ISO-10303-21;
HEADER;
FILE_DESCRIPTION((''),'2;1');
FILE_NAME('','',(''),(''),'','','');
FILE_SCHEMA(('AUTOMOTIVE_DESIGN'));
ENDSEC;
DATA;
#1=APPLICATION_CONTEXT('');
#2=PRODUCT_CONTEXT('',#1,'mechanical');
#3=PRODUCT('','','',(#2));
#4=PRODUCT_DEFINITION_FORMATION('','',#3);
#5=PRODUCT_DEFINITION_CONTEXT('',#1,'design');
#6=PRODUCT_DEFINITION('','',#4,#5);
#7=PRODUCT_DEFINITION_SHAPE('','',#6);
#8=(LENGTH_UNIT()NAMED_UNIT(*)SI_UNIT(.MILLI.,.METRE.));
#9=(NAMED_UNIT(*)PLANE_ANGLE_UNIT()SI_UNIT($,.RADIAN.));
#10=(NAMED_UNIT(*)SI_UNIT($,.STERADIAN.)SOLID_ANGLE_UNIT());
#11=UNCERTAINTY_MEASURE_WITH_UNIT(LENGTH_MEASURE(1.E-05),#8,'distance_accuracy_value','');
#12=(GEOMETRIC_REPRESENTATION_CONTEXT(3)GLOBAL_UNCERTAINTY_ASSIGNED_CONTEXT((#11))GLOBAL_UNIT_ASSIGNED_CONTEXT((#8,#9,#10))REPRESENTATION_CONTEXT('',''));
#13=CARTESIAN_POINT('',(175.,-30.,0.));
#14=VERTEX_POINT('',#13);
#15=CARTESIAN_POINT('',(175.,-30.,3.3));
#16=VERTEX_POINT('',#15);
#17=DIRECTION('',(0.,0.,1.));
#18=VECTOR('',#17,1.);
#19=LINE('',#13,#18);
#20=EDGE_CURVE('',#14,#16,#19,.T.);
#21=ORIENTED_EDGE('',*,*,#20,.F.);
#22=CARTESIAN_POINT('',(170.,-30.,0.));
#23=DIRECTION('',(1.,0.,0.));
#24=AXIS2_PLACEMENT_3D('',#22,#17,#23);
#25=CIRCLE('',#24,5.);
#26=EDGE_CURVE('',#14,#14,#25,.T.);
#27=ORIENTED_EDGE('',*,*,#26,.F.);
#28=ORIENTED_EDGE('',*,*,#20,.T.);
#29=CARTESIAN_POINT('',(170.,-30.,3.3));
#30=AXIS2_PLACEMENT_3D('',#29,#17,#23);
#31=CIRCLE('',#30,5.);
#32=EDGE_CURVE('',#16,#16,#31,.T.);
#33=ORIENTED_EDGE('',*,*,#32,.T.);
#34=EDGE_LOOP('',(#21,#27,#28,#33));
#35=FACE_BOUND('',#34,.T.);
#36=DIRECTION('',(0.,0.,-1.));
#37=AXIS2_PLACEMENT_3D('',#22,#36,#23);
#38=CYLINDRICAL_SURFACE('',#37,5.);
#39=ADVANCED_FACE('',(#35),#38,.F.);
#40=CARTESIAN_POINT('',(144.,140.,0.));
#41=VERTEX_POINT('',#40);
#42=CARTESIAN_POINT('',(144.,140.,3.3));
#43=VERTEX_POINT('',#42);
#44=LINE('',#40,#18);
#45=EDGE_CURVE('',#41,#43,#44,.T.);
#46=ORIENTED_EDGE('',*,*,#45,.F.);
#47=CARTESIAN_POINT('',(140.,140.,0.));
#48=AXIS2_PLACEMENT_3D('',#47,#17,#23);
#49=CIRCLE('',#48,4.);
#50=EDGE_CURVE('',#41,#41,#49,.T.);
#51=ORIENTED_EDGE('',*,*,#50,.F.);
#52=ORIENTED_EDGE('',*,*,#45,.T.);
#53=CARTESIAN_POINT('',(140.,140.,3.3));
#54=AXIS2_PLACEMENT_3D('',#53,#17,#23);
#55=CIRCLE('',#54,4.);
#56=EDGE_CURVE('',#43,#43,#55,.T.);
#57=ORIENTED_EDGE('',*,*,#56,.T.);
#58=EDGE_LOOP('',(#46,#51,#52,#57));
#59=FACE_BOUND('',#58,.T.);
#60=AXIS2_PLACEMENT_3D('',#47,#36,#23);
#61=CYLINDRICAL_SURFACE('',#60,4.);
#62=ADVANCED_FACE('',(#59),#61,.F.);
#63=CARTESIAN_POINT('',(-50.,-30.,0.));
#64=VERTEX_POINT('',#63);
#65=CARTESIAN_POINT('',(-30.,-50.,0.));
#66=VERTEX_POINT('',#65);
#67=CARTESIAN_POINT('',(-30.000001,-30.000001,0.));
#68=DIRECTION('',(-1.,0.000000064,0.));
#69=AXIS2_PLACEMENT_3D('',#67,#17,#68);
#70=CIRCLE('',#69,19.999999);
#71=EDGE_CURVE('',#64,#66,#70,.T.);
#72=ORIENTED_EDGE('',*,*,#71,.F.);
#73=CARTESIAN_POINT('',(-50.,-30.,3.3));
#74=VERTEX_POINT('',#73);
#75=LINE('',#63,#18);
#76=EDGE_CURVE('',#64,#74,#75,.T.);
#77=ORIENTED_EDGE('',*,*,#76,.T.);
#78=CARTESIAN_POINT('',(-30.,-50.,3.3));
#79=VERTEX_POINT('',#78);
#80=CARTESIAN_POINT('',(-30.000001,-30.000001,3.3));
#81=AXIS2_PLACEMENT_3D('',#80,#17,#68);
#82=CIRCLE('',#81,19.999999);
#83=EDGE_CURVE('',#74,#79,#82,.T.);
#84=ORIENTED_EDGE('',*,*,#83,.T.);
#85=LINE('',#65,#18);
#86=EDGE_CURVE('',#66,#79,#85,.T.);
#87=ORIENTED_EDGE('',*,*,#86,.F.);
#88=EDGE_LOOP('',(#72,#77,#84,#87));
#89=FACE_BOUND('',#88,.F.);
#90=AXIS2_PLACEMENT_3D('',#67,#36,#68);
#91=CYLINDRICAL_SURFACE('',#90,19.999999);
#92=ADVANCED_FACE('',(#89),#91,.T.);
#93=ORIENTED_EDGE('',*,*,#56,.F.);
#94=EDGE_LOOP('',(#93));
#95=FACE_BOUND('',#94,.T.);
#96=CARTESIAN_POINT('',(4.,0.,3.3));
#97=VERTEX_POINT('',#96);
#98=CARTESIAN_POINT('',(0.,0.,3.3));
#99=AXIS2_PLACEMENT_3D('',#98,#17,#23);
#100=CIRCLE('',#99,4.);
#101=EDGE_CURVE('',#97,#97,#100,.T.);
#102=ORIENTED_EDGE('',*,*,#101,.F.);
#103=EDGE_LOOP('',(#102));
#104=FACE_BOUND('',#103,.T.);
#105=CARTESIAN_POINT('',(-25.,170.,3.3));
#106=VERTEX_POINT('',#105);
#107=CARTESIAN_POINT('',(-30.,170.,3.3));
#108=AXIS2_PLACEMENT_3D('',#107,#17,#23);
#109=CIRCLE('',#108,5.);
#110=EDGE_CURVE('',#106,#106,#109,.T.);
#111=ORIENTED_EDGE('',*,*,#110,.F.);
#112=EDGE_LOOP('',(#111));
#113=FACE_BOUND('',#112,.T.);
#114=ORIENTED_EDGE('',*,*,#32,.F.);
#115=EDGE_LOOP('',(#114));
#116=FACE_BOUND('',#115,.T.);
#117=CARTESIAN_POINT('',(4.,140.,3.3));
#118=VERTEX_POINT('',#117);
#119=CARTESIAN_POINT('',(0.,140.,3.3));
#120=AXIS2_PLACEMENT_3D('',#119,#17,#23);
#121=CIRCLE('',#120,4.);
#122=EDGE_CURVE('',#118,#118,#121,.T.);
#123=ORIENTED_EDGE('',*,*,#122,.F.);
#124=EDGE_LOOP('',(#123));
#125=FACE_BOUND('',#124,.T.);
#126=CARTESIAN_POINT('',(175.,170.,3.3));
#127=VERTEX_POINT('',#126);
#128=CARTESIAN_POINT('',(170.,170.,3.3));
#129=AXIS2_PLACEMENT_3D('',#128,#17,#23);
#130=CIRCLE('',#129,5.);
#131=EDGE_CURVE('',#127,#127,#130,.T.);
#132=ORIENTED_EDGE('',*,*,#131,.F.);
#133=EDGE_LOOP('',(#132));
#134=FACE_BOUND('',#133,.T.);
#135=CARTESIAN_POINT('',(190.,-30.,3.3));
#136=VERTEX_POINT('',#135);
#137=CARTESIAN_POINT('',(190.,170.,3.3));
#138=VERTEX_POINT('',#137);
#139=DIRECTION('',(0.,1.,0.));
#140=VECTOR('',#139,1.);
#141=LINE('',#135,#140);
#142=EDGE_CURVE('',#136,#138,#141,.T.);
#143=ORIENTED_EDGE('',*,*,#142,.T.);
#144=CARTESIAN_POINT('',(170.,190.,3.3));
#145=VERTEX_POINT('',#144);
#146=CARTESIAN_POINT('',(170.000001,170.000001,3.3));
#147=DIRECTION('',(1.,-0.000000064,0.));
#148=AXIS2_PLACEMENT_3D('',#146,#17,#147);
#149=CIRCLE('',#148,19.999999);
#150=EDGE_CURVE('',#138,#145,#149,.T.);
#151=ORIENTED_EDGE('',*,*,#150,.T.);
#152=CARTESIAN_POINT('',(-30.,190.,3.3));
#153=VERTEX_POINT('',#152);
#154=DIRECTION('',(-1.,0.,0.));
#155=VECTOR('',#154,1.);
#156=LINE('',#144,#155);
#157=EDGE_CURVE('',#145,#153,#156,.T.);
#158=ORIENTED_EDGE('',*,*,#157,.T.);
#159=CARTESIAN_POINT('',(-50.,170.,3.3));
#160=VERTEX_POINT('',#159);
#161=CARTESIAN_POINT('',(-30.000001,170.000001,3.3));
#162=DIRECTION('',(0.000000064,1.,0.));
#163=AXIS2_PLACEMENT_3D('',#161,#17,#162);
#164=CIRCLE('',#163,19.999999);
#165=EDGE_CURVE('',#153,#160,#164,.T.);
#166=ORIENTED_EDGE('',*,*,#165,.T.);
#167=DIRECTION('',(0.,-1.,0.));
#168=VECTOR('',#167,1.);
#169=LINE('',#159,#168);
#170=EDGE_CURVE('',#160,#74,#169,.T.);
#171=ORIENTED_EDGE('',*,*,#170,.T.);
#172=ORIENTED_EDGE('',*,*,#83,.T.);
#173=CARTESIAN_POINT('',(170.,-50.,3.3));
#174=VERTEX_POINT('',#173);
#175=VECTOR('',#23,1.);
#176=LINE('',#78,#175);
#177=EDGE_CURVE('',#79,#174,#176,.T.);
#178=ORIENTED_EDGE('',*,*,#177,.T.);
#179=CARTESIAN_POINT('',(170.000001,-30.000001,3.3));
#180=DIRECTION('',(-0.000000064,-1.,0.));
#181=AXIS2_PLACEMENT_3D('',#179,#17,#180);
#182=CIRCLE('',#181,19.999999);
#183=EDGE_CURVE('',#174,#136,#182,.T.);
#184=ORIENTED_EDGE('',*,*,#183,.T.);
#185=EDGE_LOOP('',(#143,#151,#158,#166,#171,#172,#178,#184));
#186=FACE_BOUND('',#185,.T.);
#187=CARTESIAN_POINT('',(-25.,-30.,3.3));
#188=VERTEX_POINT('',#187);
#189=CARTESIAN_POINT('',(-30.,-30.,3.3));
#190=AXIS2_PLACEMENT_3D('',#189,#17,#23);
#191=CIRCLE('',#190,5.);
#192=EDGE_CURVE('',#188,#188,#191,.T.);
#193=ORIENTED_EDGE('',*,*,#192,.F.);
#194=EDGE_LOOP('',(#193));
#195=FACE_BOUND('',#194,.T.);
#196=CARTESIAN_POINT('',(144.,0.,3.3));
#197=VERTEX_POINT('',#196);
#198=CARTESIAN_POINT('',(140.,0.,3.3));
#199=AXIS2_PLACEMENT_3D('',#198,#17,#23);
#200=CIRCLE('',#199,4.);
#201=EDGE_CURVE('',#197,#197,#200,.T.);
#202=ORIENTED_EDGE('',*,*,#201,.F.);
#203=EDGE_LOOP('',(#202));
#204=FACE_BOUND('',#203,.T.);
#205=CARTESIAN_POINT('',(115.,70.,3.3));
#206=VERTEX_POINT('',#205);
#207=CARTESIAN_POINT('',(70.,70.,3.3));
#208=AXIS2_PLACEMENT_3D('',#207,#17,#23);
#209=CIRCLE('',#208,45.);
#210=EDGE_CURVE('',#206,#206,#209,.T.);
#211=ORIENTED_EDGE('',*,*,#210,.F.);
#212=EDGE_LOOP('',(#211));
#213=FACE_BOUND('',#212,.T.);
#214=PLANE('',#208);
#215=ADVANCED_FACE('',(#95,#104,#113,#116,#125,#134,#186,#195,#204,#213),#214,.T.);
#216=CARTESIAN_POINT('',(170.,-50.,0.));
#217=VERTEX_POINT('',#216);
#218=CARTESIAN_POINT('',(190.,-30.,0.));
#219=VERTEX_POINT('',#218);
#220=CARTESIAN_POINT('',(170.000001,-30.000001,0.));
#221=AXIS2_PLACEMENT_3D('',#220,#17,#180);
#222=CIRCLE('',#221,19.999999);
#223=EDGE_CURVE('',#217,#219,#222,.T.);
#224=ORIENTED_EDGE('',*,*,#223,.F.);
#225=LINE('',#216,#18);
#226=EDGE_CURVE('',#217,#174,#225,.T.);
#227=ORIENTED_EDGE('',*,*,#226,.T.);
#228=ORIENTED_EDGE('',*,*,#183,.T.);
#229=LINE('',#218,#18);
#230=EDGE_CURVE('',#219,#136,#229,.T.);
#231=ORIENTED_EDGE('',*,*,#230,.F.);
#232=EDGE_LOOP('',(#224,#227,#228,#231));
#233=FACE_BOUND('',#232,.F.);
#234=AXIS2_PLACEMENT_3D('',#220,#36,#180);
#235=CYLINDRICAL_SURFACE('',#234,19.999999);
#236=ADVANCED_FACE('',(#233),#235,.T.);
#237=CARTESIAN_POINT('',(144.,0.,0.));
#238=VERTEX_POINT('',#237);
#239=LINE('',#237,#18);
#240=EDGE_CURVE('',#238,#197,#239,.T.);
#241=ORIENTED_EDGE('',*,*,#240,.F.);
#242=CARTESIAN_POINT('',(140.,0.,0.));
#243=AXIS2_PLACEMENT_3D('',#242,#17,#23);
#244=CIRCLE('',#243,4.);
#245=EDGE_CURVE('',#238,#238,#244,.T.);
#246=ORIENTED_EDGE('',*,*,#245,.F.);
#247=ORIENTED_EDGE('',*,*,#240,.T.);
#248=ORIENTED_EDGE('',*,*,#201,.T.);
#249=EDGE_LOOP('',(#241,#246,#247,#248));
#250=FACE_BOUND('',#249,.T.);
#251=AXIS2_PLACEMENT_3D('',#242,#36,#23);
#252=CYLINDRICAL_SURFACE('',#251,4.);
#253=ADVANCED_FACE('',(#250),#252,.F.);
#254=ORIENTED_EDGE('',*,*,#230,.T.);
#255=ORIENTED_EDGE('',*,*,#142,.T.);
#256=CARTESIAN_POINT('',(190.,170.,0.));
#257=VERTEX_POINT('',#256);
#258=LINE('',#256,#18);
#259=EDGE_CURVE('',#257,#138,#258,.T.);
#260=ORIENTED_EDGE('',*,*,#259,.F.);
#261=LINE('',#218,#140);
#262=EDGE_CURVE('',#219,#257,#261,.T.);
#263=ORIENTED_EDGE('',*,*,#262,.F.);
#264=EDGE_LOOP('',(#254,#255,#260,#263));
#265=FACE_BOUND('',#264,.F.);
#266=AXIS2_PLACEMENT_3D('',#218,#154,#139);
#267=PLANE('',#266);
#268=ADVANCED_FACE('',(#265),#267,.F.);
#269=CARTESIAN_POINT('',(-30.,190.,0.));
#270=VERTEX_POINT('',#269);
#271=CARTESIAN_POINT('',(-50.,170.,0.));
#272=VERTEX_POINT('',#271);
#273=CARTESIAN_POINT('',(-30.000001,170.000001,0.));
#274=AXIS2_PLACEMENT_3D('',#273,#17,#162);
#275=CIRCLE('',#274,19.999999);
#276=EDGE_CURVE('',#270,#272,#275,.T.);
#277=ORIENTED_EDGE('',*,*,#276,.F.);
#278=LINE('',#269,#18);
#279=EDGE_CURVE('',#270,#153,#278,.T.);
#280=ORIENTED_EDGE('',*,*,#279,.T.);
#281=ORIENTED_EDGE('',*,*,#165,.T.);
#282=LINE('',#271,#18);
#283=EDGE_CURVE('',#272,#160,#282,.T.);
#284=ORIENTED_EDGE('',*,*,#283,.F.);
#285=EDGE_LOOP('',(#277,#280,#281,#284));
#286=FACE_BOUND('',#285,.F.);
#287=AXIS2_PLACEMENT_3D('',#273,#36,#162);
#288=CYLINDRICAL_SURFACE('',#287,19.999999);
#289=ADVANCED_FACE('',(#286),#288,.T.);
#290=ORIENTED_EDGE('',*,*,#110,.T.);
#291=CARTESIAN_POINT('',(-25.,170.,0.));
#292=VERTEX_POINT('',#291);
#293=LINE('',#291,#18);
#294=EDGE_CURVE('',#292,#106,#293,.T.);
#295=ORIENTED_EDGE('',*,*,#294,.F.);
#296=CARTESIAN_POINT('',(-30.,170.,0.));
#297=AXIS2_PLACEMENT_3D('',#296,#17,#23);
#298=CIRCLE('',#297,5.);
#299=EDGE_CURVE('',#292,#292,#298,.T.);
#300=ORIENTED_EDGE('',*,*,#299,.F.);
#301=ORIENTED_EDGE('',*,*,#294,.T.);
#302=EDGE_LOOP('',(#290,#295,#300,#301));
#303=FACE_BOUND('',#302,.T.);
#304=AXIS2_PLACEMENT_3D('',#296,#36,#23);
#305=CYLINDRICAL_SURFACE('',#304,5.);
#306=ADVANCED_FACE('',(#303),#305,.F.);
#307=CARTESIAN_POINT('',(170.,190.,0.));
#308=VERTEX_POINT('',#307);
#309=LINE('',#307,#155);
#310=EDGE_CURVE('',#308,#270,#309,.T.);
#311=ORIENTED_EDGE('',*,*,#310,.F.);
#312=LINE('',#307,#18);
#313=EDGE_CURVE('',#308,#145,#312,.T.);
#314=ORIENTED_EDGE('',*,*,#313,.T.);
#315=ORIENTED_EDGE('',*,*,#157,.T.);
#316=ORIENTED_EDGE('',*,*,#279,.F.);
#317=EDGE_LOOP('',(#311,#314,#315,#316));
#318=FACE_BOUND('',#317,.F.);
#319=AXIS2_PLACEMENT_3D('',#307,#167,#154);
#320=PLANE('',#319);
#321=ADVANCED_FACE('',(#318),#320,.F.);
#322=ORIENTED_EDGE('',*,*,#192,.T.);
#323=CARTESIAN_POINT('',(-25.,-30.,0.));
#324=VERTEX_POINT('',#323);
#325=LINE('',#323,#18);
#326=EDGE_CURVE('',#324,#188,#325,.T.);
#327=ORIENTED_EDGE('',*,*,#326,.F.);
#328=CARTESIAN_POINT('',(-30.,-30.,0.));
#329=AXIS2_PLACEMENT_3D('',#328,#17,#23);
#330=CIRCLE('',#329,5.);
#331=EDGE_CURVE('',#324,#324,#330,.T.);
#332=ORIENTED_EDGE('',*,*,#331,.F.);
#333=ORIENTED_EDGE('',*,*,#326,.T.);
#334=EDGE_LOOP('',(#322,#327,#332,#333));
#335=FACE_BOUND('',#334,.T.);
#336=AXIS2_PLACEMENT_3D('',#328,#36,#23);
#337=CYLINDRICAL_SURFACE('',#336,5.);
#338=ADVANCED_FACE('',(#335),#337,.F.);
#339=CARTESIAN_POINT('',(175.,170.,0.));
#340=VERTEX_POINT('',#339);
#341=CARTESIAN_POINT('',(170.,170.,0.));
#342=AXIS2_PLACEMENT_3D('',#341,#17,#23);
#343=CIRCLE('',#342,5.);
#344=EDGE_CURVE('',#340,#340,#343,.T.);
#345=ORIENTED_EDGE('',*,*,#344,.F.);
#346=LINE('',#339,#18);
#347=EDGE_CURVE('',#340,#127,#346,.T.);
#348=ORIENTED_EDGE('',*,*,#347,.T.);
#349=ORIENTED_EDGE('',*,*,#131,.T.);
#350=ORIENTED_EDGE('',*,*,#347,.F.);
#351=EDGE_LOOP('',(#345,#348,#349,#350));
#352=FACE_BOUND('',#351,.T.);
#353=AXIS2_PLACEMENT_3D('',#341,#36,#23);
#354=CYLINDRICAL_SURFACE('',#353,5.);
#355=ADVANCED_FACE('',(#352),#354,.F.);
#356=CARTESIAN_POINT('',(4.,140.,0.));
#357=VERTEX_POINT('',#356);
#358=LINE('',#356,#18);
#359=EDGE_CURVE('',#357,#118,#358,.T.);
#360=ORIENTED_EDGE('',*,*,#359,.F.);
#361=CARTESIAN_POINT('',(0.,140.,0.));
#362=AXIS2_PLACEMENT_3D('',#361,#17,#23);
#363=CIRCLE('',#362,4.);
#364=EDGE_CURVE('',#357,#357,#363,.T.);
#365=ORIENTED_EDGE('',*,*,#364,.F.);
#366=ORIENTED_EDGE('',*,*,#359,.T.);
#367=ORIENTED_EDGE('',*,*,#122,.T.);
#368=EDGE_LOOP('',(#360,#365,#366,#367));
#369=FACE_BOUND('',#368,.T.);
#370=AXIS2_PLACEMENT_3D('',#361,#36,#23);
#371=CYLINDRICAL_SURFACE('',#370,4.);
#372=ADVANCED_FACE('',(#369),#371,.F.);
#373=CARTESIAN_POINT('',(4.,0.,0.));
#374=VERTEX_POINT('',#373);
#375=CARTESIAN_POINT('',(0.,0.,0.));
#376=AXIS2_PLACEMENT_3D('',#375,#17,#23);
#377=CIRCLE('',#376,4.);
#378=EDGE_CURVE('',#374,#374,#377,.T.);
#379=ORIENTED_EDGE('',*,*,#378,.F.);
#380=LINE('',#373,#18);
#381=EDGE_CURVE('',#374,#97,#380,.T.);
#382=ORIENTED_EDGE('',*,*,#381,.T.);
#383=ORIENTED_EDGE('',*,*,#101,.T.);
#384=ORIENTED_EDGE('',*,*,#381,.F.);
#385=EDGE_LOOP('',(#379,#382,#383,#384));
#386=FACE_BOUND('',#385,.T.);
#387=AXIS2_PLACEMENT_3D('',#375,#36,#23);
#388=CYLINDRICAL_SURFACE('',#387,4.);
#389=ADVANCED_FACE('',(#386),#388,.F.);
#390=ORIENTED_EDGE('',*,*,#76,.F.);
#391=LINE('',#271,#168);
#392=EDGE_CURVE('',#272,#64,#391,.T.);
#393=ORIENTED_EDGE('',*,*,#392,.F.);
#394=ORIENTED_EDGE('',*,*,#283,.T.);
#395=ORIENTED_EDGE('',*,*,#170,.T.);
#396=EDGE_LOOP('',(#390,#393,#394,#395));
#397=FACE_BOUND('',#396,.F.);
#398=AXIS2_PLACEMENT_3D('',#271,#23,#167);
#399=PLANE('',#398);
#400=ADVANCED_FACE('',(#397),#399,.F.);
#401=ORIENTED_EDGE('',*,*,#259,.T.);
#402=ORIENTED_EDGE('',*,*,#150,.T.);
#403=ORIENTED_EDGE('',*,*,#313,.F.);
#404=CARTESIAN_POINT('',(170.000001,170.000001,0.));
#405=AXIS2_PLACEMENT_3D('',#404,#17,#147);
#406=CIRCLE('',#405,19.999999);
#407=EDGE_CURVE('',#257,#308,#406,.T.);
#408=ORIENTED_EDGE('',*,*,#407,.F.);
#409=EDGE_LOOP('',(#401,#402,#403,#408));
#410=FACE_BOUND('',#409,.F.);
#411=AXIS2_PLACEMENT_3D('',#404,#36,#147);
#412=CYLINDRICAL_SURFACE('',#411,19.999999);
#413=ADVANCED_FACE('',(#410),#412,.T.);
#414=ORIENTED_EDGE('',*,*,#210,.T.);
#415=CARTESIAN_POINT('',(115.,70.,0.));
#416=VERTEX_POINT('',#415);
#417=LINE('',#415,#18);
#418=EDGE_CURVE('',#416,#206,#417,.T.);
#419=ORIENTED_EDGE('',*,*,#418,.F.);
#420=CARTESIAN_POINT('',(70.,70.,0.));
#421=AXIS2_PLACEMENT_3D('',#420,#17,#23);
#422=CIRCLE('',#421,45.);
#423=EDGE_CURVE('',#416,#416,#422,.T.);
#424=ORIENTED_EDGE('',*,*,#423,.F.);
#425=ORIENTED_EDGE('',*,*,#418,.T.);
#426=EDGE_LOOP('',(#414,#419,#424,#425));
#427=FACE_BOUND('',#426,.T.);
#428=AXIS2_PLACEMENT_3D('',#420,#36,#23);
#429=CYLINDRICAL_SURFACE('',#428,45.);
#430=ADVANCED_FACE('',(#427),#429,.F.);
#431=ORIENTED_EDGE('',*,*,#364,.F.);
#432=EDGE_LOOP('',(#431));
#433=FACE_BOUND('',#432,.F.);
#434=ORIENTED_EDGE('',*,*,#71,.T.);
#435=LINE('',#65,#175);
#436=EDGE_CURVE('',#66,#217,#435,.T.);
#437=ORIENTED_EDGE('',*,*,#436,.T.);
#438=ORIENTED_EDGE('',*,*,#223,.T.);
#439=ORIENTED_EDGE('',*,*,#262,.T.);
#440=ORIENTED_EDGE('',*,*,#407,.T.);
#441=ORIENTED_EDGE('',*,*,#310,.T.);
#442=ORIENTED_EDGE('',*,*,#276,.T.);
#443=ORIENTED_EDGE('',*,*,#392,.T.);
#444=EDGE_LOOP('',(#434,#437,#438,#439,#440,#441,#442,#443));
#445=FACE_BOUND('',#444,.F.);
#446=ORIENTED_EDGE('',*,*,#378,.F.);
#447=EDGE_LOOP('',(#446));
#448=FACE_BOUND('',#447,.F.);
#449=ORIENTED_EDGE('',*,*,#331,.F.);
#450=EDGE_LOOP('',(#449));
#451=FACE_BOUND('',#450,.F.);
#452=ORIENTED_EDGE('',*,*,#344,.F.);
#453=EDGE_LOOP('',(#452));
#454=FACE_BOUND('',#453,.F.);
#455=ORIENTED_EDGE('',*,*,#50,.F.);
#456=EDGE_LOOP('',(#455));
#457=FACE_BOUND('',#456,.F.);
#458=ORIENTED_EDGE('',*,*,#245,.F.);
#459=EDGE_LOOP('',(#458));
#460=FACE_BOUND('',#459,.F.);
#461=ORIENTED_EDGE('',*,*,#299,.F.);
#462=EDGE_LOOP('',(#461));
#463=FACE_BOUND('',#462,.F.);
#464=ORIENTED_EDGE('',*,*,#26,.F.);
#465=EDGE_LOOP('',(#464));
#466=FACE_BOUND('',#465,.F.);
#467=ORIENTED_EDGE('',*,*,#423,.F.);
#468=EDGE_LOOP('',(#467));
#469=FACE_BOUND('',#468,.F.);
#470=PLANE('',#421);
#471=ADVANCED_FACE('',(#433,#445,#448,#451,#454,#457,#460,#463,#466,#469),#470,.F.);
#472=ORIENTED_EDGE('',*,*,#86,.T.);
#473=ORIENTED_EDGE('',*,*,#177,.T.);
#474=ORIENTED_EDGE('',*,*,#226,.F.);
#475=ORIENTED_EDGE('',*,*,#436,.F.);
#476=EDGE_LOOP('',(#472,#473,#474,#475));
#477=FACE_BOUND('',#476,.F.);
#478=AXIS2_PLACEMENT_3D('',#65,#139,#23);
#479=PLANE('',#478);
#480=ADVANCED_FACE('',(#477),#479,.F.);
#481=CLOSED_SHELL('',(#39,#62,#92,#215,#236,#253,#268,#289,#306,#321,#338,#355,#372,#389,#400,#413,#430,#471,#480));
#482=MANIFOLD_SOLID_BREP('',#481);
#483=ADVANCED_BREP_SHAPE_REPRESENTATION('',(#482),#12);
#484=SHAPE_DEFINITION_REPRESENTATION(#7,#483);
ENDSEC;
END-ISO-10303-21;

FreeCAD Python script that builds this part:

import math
import FreeCAD as App
import Part
import Sketcher
Q = App.Units.Quantity

doc = App.newDocument("Part")
body = doc.addObject("PartDesign::Body", "Body")

sketch1 = body.newObject("Sketcher::SketchObject", "Sketch")
sketch1.AttachmentSupport = (doc.getObject("XY_Plane"), [""])
sketch1.MapMode = "FlatFace"
sketch1.addGeometry([
    Part.LineSegment(App.Vector(170, 190, 0), App.Vector(-30, 190, 0)),
    Part.ArcOfCircle(Part.Circle(App.Vector(-30.000001, 170.000001, 0), App.Vector(0, 0, 1), 19.999999), math.radians(89.999996), math.radians(180.000004)),
    Part.LineSegment(App.Vector(-50, 170, 0), App.Vector(-50, -30, 0)),
    Part.ArcOfCircle(Part.Circle(App.Vector(-30.000001, -30.000001, 0), App.Vector(0, 0, 1), 19.999999), math.radians(179.999996), math.radians(270.000004)),
    Part.LineSegment(App.Vector(-30, -50, 0), App.Vector(170, -50, 0)),
    Part.ArcOfCircle(Part.Circle(App.Vector(170.000001, -30.000001, 0), App.Vector(0, 0, 1), 19.999999), math.radians(-90.000004), math.radians(0.000004)),
    Part.LineSegment(App.Vector(190, -30, 0), App.Vector(190, 170, 0)),
    Part.ArcOfCircle(Part.Circle(App.Vector(170.000001, 170.000001, 0), App.Vector(0, 0, 1), 19.999999), math.radians(-0.000004), math.radians(90.000004)),
    Part.Circle(App.Vector(-30, -30, 0), App.Vector(0, 0, 1), 5),
    Part.Circle(App.Vector(0, 0, 0), App.Vector(0, 0, 1), 4),
    Part.Circle(App.Vector(170, -30, 0), App.Vector(0, 0, 1), 5),
    Part.Circle(App.Vector(140, 0, 0), App.Vector(0, 0, 1), 4),
    Part.Circle(App.Vector(0, 140, 0), App.Vector(0, 0, 1), 4),
    Part.Circle(App.Vector(-30, 170, 0), App.Vector(0, 0, 1), 5),
    Part.Circle(App.Vector(70, 70, 0), App.Vector(0, 0, 1), 45),
    Part.Circle(App.Vector(140, 140, 0), App.Vector(0, 0, 1), 4),
    Part.Circle(App.Vector(170, 170, 0), App.Vector(0, 0, 1), 5),
], False)
sketch1.addConstraint([
    Sketcher.Constraint("Tangent", 0, 2, 1, 1),
    Sketcher.Constraint("Tangent", 1, 2, 2, 1),
    Sketcher.Constraint("Tangent", 2, 2, 3, 1),
    Sketcher.Constraint("Tangent", 3, 2, 4, 1),
    Sketcher.Constraint("Tangent", 4, 2, 5, 1),
    Sketcher.Constraint("Tangent", 5, 2, 6, 1),
    Sketcher.Constraint("Tangent", 6, 2, 7, 1),
    Sketcher.Constraint("Tangent", 7, 2, 0, 1),
    Sketcher.Constraint("Horizontal", 0),
    Sketcher.Constraint("Vertical", 2),
    Sketcher.Constraint("Horizontal", 4),
    Sketcher.Constraint("Vertical", 6),
    Sketcher.Constraint("Coincident", 9, 3, -1, 1),
    Sketcher.Constraint("Coincident", 8, 3, 3, 3),
    Sketcher.Constraint("Coincident", 10, 3, 5, 3),
    Sketcher.Constraint("Coincident", 13, 3, 1, 3),
    Sketcher.Constraint("Coincident", 16, 3, 7, 3),
    Sketcher.Constraint("Equal", 1, 3),
    Sketcher.Constraint("Equal", 3, 5),
    Sketcher.Constraint("Equal", 5, 7),
    Sketcher.Constraint("Equal", 8, 10),
    Sketcher.Constraint("Equal", 9, 11),
    Sketcher.Constraint("Equal", 11, 12),
    Sketcher.Constraint("Equal", 10, 13),
    Sketcher.Constraint("Equal", 12, 15),
    Sketcher.Constraint("Equal", 13, 16),
    Sketcher.Constraint("PointOnObject", 11, 3, -1),
    Sketcher.Constraint("PointOnObject", 12, 3, -2),
    Sketcher.Constraint("Horizontal", 12, 3, 15, 3),
    Sketcher.Constraint("Vertical", 11, 3, 15, 3),
    Sketcher.Constraint("Equal", 4, 2),
    Sketcher.Constraint("Diameter", 8, Q("10 mm")),
    Sketcher.Constraint("Diameter", 9, Q("8 mm")),
    Sketcher.Constraint("Diameter", 14, Q("90 mm")),
    Sketcher.Constraint("Radius", 1, Q("19.999999 mm")),
    Sketcher.Constraint("DistanceX", 0, 2, 0, 1, Q("200 mm")),
    Sketcher.Constraint("DistanceX", 1, 3, -1, 1, Q("30.000001 mm")),
    Sketcher.Constraint("DistanceY", -1, 1, 1, 3, Q("170.000001 mm")),
    Sketcher.Constraint("DistanceX", -1, 1, 11, 3, Q("140 mm")),
    Sketcher.Constraint("DistanceY", -1, 1, 12, 3, Q("140 mm")),
    Sketcher.Constraint("DistanceX", -1, 1, 14, 3, Q("70 mm")),
    Sketcher.Constraint("DistanceY", -1, 1, 14, 3, Q("70 mm")),
])
pad1 = body.newObject("PartDesign::Pad", "Pad")
pad1.Profile = sketch1
pad1.Length = 3.3

doc.recompute()
